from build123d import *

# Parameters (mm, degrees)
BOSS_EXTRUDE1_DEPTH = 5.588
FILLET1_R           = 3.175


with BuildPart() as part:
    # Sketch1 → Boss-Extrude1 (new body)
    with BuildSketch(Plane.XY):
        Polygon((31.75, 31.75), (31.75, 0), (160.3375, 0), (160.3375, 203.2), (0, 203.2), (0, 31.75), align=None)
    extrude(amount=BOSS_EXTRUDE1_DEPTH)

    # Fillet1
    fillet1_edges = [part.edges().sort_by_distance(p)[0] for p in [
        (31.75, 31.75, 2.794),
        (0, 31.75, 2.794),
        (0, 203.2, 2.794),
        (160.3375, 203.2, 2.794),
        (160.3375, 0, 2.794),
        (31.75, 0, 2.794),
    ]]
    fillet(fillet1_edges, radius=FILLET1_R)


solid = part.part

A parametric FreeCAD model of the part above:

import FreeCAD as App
import Part
import Sketcher

V = App.Vector
Q = App.Units.Quantity


def edges_at(feature, points):
    """Names of the edges that pass closest to the given points."""
    edges = feature.Shape.Edges
    near = lambda p: min(range(len(edges)), key=lambda i: edges[i].distToShape(Part.Vertex(*p))[0])
    return sorted({f"Edge{near(p) + 1}" for p in points})


def add_polygon(sketch, points):
    """Adds a closed chain of lines whose ends are joined by coincident constraints."""
    first, n = sketch.GeometryCount, len(points)
    for a, b in zip(points, points[1:] + points[:1]):
        sketch.addGeometry(Part.LineSegment(App.Vector(*a, 0), App.Vector(*b, 0)), False)
    for i in range(n):
        sketch.addConstraint(Sketcher.Constraint("Coincident", first + i, 2, first + (i + 1) % n, 1))

doc = App.newDocument("Part")
body = doc.addObject("PartDesign::Body", "Body")

sketch1 = body.newObject("Sketcher::SketchObject", "Sketch")
sketch1.AttachmentSupport = (doc.getObject("XY_Plane"), [""])
sketch1.MapMode = "FlatFace"
add_polygon(sketch1, [(32, 32), (32, 0), (160, 0), (160, 203), (0, 203), (0, 32)])
sketch1.addConstraint([
    Sketcher.Constraint("Vertical", 0),
    Sketcher.Constraint("Horizontal", 1),
    Sketcher.Constraint("Vertical", 2),
    Sketcher.Constraint("Horizontal", 3),
    Sketcher.Constraint("Vertical", 4),
    Sketcher.Constraint("Horizontal", 5),
    Sketcher.Constraint("PointOnObject", 0, 2, -1),
    Sketcher.Constraint("PointOnObject", 3, 2, -2),
    Sketcher.Constraint("Equal", 5, 0),
    Sketcher.Constraint("DistanceY", 2, 1, 2, 2, Q("8 in")),
    Sketcher.Constraint("DistanceX", 5, 1, 5, 2, Q("1.25 in")),
    Sketcher.Constraint("DistanceX", 1, 1, 1, 2, Q("5.0625 in")),
])
pad1 = body.newObject("PartDesign::Pad", "Pad")
pad1.Profile = sketch1
pad1.Length = Q("0.22 in")
doc.recompute()

fillet = body.newObject("PartDesign::Fillet", "Fillet")
fillet.Base = (pad1, edges_at(pad1, [
    (31.75, 31.75, 2.794),
    (0, 31.75, 2.794),
    (0, 203.2, 2.794),
    (160.338, 203.2, 2.794),
    (160.338, 0, 2.794),
    (31.75, 0, 2.794),
]))
fillet.Radius = Q("0.125 in")

doc.recompute()
